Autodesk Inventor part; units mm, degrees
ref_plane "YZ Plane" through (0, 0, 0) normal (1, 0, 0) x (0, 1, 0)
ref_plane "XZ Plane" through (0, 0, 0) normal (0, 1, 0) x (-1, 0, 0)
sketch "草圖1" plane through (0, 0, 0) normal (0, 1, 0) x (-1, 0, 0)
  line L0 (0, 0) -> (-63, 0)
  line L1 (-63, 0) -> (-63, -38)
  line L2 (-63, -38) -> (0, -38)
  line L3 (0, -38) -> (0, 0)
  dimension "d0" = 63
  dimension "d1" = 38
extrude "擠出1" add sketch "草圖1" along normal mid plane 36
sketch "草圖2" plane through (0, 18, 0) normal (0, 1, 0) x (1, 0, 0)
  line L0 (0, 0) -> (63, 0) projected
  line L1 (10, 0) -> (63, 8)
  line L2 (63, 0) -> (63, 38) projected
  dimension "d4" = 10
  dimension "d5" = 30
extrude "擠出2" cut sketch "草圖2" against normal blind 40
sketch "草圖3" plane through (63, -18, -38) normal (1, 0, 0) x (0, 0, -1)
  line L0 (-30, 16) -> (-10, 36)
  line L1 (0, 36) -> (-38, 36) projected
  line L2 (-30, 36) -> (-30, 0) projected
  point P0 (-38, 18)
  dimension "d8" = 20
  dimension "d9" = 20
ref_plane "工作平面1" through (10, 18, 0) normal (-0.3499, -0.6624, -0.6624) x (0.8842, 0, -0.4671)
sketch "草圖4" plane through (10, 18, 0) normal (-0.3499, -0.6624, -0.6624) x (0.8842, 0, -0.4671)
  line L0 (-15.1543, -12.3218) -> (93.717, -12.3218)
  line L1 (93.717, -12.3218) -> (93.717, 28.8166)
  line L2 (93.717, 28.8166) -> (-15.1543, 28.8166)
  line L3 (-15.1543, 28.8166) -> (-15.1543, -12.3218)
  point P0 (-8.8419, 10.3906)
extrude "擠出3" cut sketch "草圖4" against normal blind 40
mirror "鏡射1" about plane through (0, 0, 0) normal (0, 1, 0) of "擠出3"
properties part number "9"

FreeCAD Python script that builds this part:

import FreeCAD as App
import Part
import Sketcher
from FreeCAD import Vector
Q = App.Units.Quantity

doc = App.newDocument("Part")
params = doc.addObject("Spreadsheet::Sheet", "Params")
for row, (alias, value) in enumerate([
    ("sketch1_width", "63 mm"),
    ("sketch1_height", "38 mm"),
    ("pad1_length", "36 mm"),
    ("sketch2_width", "53 mm"),
    ("sketch2_height", "8 mm"),
    ("pocket1_length", "40 mm"),
    ("pocket2_length", "40 mm"),
], start=1):
    params.set(f"A{row}", alias)
    params.set(f"B{row}", "=" + value)
    params.setAlias(f"B{row}", alias)

body = doc.addObject("PartDesign::Body", "Body")

# Sketch on XZ plane
sketch1 = body.newObject("Sketcher::SketchObject", "Sketch")
sketch1.AttachmentSupport = (doc.getObject("XZ_Plane"), [""])
sketch1.MapMode = "FlatFace"
sketch1.addGeometry(Part.LineSegment(Vector(0, -38, 0), Vector(0, 0, 0)), False)
sketch1.addGeometry(Part.LineSegment(Vector(0, 0, 0), Vector(63, 0, 0)), False)
sketch1.addGeometry(Part.LineSegment(Vector(63, 0, 0), Vector(63, -38, 0)), False)
sketch1.addGeometry(Part.LineSegment(Vector(63, -38, 0), Vector(0, -38, 0)), False)
sketch1.addConstraint(Sketcher.Constraint("Coincident", 0, 2, 1, 1))
sketch1.addConstraint(Sketcher.Constraint("Coincident", 1, 2, 2, 1))
sketch1.addConstraint(Sketcher.Constraint("Coincident", 2, 2, 3, 1))
sketch1.addConstraint(Sketcher.Constraint("Coincident", 3, 2, 0, 1))
sketch1.addConstraint(Sketcher.Constraint("Vertical", 0))
sketch1.addConstraint(Sketcher.Constraint("Horizontal", 1))
sketch1.addConstraint(Sketcher.Constraint("Vertical", 2))
sketch1.addConstraint(Sketcher.Constraint("Horizontal", 3))
sketch1.addConstraint(Sketcher.Constraint("Coincident", 0, 2, -1, 1))
sketch1.addConstraint(Sketcher.Constraint("DistanceX", 1, 1, 1, 2, Q("63 mm")))
sketch1.addConstraint(Sketcher.Constraint("DistanceY", 0, 1, 0, 2, Q("38 mm")))
sketch1.setExpression("Constraints[9]", "Params.sketch1_width")
sketch1.setExpression("Constraints[10]", "Params.sketch1_height")
pad1 = body.newObject("PartDesign::Pad", "Pad")
pad1.Profile = sketch1
pad1.setExpression("Length", "Params.pad1_length")
pad1.Midplane = True

# Sketch on XZ plane
sketch2 = body.newObject("Sketcher::SketchObject", "Sketch001")
sketch2.AttachmentSupport = (doc.getObject("XZ_Plane"), [""])
sketch2.MapMode = "FlatFace"
sketch2.AttachmentOffset = App.Placement(Vector(0, 0, -18), App.Rotation())
sketch2.addGeometry(Part.LineSegment(Vector(63, -8, 0), Vector(10, 0, 0)), False)
sketch2.addGeometry(Part.LineSegment(Vector(10, 0, 0), Vector(63, 0, 0)), False)
sketch2.addGeometry(Part.LineSegment(Vector(63, 0, 0), Vector(63, -8, 0)), False)
sketch2.addConstraint(Sketcher.Constraint("Coincident", 0, 2, 1, 1))
sketch2.addConstraint(Sketcher.Constraint("Coincident", 1, 2, 2, 1))
sketch2.addConstraint(Sketcher.Constraint("Coincident", 2, 2, 0, 1))
sketch2.addConstraint(Sketcher.Constraint("Horizontal", 1))
sketch2.addConstraint(Sketcher.Constraint("Vertical", 2))
sketch2.addConstraint(Sketcher.Constraint("PointOnObject", 0, 2, -1))
sketch2.addConstraint(Sketcher.Constraint("DistanceX", -1, 1, 0, 2, Q("10 mm")))
sketch2.addConstraint(Sketcher.Constraint("DistanceX", 1, 1, 1, 2, Q("53 mm")))
sketch2.addConstraint(Sketcher.Constraint("DistanceY", 2, 2, 2, 1, Q("8 mm")))
sketch2.setExpression("Constraints[7]", "Params.sketch2_width")
sketch2.setExpression("Constraints[8]", "Params.sketch2_height")
pocket1 = body.newObject("PartDesign::Pocket", "Pocket")
pocket1.Profile = sketch2
pocket1.setExpression("Length", "Params.pocket1_length")
pocket1.Reversed = True

# Sketch on an angled plane
sketch3 = body.newObject("Sketcher::SketchObject", "Sketch002")
sketch3.Placement = App.Placement(Vector(10, 18, 0), App.Rotation(Vector(0.884212424, 0.000016865, -0.467084992), Vector(0.309411746, -0.749143765, 0.585702989), Vector(-0.349903931, -0.662407442, -0.662407442), "ZXY"))
sketch3.addGeometry(Part.LineSegment(Vector(-15, 29, 0), Vector(-15, -12, 0)), False)
sketch3.addGeometry(Part.LineSegment(Vector(-15, -12, 0), Vector(94, -12, 0)), False)
sketch3.addGeometry(Part.LineSegment(Vector(94, -12, 0), Vector(94, 29, 0)), False)
sketch3.addGeometry(Part.LineSegment(Vector(94, 29, 0), Vector(-15, 29, 0)), False)
sketch3.addConstraint(Sketcher.Constraint("Coincident", 0, 2, 1, 1))
sketch3.addConstraint(Sketcher.Constraint("Coincident", 1, 2, 2, 1))
sketch3.addConstraint(Sketcher.Constraint("Coincident", 2, 2, 3, 1))
sketch3.addConstraint(Sketcher.Constraint("Coincident", 3, 2, 0, 1))
sketch3.addConstraint(Sketcher.Constraint("Vertical", 0))
sketch3.addConstraint(Sketcher.Constraint("Horizontal", 1))
sketch3.addConstraint(Sketcher.Constraint("Vertical", 2))
sketch3.addConstraint(Sketcher.Constraint("Horizontal", 3))
sketch3.addConstraint(Sketcher.Constraint("DistanceX", 1, 1, 1, 2, Q("108.8713 mm")))
sketch3.addConstraint(Sketcher.Constraint("DistanceY", 0, 2, 0, 1, Q("41.1384 mm")))
sketch3.addConstraint(Sketcher.Constraint("DistanceX", -1, 1, 1, 2, Q("93.717 mm")))
sketch3.addConstraint(Sketcher.Constraint("DistanceY", 0, 2, -1, 1, Q("12.3218 mm")))
pocket2 = body.newObject("PartDesign::Pocket", "Pocket001")
pocket2.Profile = sketch3
pocket2.setExpression("Length", "Params.pocket2_length")
doc.recompute()

mirrored = body.newObject("PartDesign::Mirrored", "Mirrored")
mirrored.Originals = [pocket2]
mirrored.MirrorPlane = (doc.getObject("XZ_Plane"), [""])
body.Tip = mirrored

doc.recompute()
